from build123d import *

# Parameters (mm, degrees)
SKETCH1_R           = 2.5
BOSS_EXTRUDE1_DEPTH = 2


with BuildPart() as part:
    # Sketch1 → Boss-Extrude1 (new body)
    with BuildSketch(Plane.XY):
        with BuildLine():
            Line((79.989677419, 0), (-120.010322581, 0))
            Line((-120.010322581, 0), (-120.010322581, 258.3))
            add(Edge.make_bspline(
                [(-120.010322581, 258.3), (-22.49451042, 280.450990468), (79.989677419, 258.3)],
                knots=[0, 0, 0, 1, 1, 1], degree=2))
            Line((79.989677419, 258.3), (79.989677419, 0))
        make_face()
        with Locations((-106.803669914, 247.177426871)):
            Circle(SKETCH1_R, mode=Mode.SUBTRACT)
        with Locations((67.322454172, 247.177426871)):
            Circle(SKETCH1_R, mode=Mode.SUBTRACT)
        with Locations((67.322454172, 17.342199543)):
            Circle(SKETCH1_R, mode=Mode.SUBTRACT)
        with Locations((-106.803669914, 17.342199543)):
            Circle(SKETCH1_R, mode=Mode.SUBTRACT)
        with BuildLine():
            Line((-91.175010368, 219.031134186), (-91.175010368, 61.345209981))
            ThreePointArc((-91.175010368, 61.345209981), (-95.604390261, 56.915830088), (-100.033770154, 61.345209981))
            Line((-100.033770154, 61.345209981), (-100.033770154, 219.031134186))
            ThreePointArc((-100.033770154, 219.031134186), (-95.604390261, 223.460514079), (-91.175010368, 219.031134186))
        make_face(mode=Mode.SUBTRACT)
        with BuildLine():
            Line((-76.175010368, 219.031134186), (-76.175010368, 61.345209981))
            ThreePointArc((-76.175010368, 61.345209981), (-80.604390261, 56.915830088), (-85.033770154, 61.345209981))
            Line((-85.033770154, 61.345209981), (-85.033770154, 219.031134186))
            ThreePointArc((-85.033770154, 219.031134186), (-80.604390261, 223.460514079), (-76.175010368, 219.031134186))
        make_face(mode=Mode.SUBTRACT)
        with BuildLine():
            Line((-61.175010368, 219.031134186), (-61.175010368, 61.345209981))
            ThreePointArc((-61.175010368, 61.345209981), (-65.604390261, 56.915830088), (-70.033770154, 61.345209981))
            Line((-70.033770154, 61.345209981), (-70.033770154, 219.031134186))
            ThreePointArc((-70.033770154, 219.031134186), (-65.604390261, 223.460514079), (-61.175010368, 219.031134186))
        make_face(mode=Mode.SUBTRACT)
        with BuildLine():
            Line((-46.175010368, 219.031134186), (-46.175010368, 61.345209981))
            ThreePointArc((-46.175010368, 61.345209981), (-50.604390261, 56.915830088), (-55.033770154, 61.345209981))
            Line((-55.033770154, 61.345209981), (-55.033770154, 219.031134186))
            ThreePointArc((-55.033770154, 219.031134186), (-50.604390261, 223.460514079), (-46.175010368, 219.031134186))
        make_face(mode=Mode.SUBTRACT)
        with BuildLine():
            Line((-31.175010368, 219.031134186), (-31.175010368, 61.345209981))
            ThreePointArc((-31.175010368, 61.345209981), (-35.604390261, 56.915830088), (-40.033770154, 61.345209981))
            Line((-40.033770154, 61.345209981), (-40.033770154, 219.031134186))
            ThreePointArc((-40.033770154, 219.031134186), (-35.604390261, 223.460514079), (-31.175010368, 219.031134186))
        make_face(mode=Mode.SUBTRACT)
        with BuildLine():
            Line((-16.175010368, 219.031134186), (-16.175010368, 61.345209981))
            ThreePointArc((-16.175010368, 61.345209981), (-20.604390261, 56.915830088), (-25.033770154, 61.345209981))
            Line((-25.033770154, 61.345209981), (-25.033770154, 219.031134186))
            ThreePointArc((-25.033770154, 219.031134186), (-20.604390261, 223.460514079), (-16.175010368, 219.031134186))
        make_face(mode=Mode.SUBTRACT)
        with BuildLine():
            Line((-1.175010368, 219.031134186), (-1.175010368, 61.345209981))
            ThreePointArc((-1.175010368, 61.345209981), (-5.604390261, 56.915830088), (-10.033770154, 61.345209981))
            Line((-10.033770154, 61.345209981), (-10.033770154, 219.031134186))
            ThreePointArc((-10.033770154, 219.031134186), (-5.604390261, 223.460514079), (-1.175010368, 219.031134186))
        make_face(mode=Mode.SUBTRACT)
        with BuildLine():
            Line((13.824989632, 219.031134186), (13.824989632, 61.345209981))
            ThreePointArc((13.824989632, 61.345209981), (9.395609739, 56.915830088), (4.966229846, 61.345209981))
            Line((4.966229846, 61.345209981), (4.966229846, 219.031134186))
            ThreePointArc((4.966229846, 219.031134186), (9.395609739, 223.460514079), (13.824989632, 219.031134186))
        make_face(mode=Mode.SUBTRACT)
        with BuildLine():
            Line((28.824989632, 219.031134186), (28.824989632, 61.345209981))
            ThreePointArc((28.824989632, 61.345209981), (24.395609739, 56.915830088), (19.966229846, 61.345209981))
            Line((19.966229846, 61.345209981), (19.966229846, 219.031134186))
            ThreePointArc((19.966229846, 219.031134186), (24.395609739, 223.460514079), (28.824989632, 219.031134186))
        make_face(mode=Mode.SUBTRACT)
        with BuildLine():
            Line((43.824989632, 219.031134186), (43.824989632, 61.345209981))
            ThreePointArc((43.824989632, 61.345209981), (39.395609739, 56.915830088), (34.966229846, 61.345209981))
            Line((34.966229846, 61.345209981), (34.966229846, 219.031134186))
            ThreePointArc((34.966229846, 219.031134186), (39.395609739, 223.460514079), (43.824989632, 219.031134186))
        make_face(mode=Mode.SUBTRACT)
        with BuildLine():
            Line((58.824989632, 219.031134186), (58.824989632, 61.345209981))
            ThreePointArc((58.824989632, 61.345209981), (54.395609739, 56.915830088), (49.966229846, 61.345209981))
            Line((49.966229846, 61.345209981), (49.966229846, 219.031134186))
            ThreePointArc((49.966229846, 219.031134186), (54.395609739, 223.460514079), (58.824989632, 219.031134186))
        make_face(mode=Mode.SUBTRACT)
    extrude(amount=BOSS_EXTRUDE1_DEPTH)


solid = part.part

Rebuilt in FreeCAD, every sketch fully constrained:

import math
import FreeCAD as App
import Part
import Sketcher
Q = App.Units.Quantity

doc = App.newDocument("Part")
body = doc.addObject("PartDesign::Body", "Body")

sketch1 = body.newObject("Sketcher::SketchObject", "Sketch")
sketch1.AttachmentSupport = (doc.getObject("XY_Plane"), [""])
sketch1.MapMode = "FlatFace"
sketch1.addGeometry([
    Part.LineSegment(App.Vector(-120.010323, 0, 0), App.Vector(79.989677, 0, 0)),
    Part.LineSegment(App.Vector(79.989677, 0, 0), App.Vector(79.989677, 258.3, 0)),
    Part.BSplineCurve([App.Vector(-120.010323, 258.3, 0), App.Vector(-22.49451, 280.45099, 0), App.Vector(79.989677, 258.3, 0)], [3, 3], [0, 1], False, 2, [1, 1, 1], False),
    Part.LineSegment(App.Vector(-120.010323, 258.3, 0), App.Vector(-120.010323, 0, 0)),
    Part.Circle(App.Vector(67.322454, 17.3422, 0), App.Vector(0, 0, 1), 2.5),
    Part.Circle(App.Vector(-106.80367, 17.3422, 0), App.Vector(0, 0, 1), 2.5),
    Part.LineSegment(App.Vector(58.82499, 219.031134, 0), App.Vector(58.82499, 61.34521, 0)),
    Part.ArcOfCircle(Part.Circle(App.Vector(54.39561, 61.34521, 0), App.Vector(0, 0, 1), 4.42938), math.radians(180), math.radians(360)),
    Part.LineSegment(App.Vector(49.96623, 61.34521, 0), App.Vector(49.96623, 219.031134, 0)),
    Part.ArcOfCircle(Part.Circle(App.Vector(54.39561, 219.031134, 0), App.Vector(0, 0, 1), 4.42938), math.radians(0), math.radians(180)),
    Part.LineSegment(App.Vector(43.82499, 219.031134, 0), App.Vector(43.82499, 61.34521, 0)),
    Part.ArcOfCircle(Part.Circle(App.Vector(39.39561, 61.34521, 0), App.Vector(0, 0, 1), 4.42938), math.radians(180), math.radians(360)),
    Part.LineSegment(App.Vector(34.96623, 61.34521, 0), App.Vector(34.96623, 219.031134, 0)),
    Part.ArcOfCircle(Part.Circle(App.Vector(39.39561, 219.031134, 0), App.Vector(0, 0, 1), 4.42938), math.radians(0), math.radians(180)),
    Part.LineSegment(App.Vector(28.82499, 219.031134, 0), App.Vector(28.82499, 61.34521, 0)),
    Part.ArcOfCircle(Part.Circle(App.Vector(24.39561, 61.34521, 0), App.Vector(0, 0, 1), 4.42938), math.radians(180), math.radians(360)),
    Part.LineSegment(App.Vector(19.96623, 61.34521, 0), App.Vector(19.96623, 219.031134, 0)),
    Part.ArcOfCircle(Part.Circle(App.Vector(24.39561, 219.031134, 0), App.Vector(0, 0, 1), 4.42938), math.radians(0), math.radians(180)),
    Part.LineSegment(App.Vector(13.82499, 219.031134, 0), App.Vector(13.82499, 61.34521, 0)),
    Part.ArcOfCircle(Part.Circle(App.Vector(9.39561, 61.34521, 0), App.Vector(0, 0, 1), 4.42938), math.radians(180), math.radians(360)),
    Part.LineSegment(App.Vector(4.96623, 61.34521, 0), App.Vector(4.96623, 219.031134, 0)),
    Part.ArcOfCircle(Part.Circle(App.Vector(9.39561, 219.031134, 0), App.Vector(0, 0, 1), 4.42938), math.radians(0), math.radians(180)),
    Part.LineSegment(App.Vector(-1.17501, 219.031134, 0), App.Vector(-1.17501, 61.34521, 0)),
    Part.ArcOfCircle(Part.Circle(App.Vector(-5.60439, 61.34521, 0), App.Vector(0, 0, 1), 4.42938), math.radians(180), math.radians(360)),
    Part.LineSegment(App.Vector(-10.03377, 61.34521, 0), App.Vector(-10.03377, 219.031134, 0)),
    Part.ArcOfCircle(Part.Circle(App.Vector(-5.60439, 219.031134, 0), App.Vector(0, 0, 1), 4.42938), math.radians(0), math.radians(180)),
    Part.Circle(App.Vector(67.322454, 247.177427, 0), App.Vector(0, 0, 1), 2.5),
    Part.LineSegment(App.Vector(-16.17501, 219.031134, 0), App.Vector(-16.17501, 61.34521, 0)),
    Part.ArcOfCircle(Part.Circle(App.Vector(-20.60439, 61.34521, 0), App.Vector(0, 0, 1), 4.42938), math.radians(180), math.radians(360)),
    Part.LineSegment(App.Vector(-25.03377, 61.34521, 0), App.Vector(-25.03377, 219.031134, 0)),
    Part.ArcOfCircle(Part.Circle(App.Vector(-20.60439, 219.031134, 0), App.Vector(0, 0, 1), 4.42938), math.radians(0), math.radians(180)),
    Part.LineSegment(App.Vector(-31.17501, 219.031134, 0), App.Vector(-31.17501, 61.34521, 0)),
    Part.ArcOfCircle(Part.Circle(App.Vector(-35.60439, 61.34521, 0), App.Vector(0, 0, 1), 4.42938), math.radians(180), math.radians(360)),
    Part.LineSegment(App.Vector(-40.03377, 61.34521, 0), App.Vector(-40.03377, 219.031134, 0)),
    Part.ArcOfCircle(Part.Circle(App.Vector(-35.60439, 219.031134, 0), App.Vector(0, 0, 1), 4.42938), math.radians(0), math.radians(180)),
    Part.LineSegment(App.Vector(-46.17501, 219.031134, 0), App.Vector(-46.17501, 61.34521, 0)),
    Part.ArcOfCircle(Part.Circle(App.Vector(-50.60439, 61.34521, 0), App.Vector(0, 0, 1), 4.42938), math.radians(180), math.radians(360)),
    Part.LineSegment(App.Vector(-55.03377, 61.34521, 0), App.Vector(-55.03377, 219.031134, 0)),
    Part.ArcOfCircle(Part.Circle(App.Vector(-50.60439, 219.031134, 0), App.Vector(0, 0, 1), 4.42938), math.radians(0), math.radians(180)),
    Part.LineSegment(App.Vector(-61.17501, 219.031134, 0), App.Vector(-61.17501, 61.34521, 0)),
    Part.ArcOfCircle(Part.Circle(App.Vector(-65.60439, 61.34521, 0), App.Vector(0, 0, 1), 4.42938), math.radians(180), math.radians(360)),
    Part.LineSegment(App.Vector(-70.03377, 61.34521, 0), App.Vector(-70.03377, 219.031134, 0)),
    Part.ArcOfCircle(Part.Circle(App.Vector(-65.60439, 219.031134, 0), App.Vector(0, 0, 1), 4.42938), math.radians(0), math.radians(180)),
    Part.LineSegment(App.Vector(-76.17501, 219.031134, 0), App.Vector(-76.17501, 61.34521, 0)),
    Part.ArcOfCircle(Part.Circle(App.Vector(-80.60439, 61.34521, 0), App.Vector(0, 0, 1), 4.42938), math.radians(180), math.radians(360)),
    Part.LineSegment(App.Vector(-85.03377, 61.34521, 0), App.Vector(-85.03377, 219.031134, 0)),
    Part.ArcOfCircle(Part.Circle(App.Vector(-80.60439, 219.031134, 0), App.Vector(0, 0, 1), 4.42938), math.radians(0), math.radians(180)),
    Part.LineSegment(App.Vector(-91.17501, 219.031134, 0), App.Vector(-91.17501, 61.34521, 0)),
    Part.ArcOfCircle(Part.Circle(App.Vector(-95.60439, 61.34521, 0), App.Vector(0, 0, 1), 4.42938), math.radians(180), math.radians(360)),
    Part.LineSegment(App.Vector(-100.03377, 61.34521, 0), App.Vector(-100.03377, 219.031134, 0)),
    Part.ArcOfCircle(Part.Circle(App.Vector(-95.60439, 219.031134, 0), App.Vector(0, 0, 1), 4.42938), math.radians(0), math.radians(180)),
    Part.Circle(App.Vector(-106.80367, 247.177427, 0), App.Vector(0, 0, 1), 2.5),
], False)
sketch1.addConstraint([
    Sketcher.Constraint("Block", 2),
    Sketcher.Constraint("Coincident", 0, 2, 1, 1),
    Sketcher.Constraint("Coincident", 1, 2, 2, 2),
    Sketcher.Constraint("Coincident", 2, 1, 3, 1),
    Sketcher.Constraint("Coincident", 3, 2, 0, 1),
    Sketcher.Constraint("Tangent", 6, 2, 7, 2),
    Sketcher.Constraint("Tangent", 7, 1, 8, 1),
    Sketcher.Constraint("Tangent", 8, 2, 9, 2),
    Sketcher.Constraint("Tangent", 9, 1, 6, 1),
    Sketcher.Constraint("Tangent", 10, 2, 11, 2),
    Sketcher.Constraint("Tangent", 11, 1, 12, 1),
    Sketcher.Constraint("Tangent", 12, 2, 13, 2),
    Sketcher.Constraint("Tangent", 13, 1, 10, 1),
    Sketcher.Constraint("Tangent", 14, 2, 15, 2),
    Sketcher.Constraint("Tangent", 15, 1, 16, 1),
    Sketcher.Constraint("Tangent", 16, 2, 17, 2),
    Sketcher.Constraint("Tangent", 17, 1, 14, 1),
    Sketcher.Constraint("Tangent", 18, 2, 19, 2),
    Sketcher.Constraint("Tangent", 19, 1, 20, 1),
    Sketcher.Constraint("Tangent", 20, 2, 21, 2),
    Sketcher.Constraint("Tangent", 21, 1, 18, 1),
    Sketcher.Constraint("Tangent", 22, 2, 23, 2),
    Sketcher.Constraint("Tangent", 23, 1, 24, 1),
    Sketcher.Constraint("Tangent", 24, 2, 25, 2),
    Sketcher.Constraint("Tangent", 25, 1, 22, 1),
    Sketcher.Constraint("Tangent", 27, 2, 28, 2),
    Sketcher.Constraint("Tangent", 28, 1, 29, 1),
    Sketcher.Constraint("Tangent", 29, 2, 30, 2),
    Sketcher.Constraint("Tangent", 30, 1, 27, 1),
    Sketcher.Constraint("Tangent", 31, 2, 32, 2),
    Sketcher.Constraint("Tangent", 32, 1, 33, 1),
    Sketcher.Constraint("Tangent", 33, 2, 34, 2),
    Sketcher.Constraint("Tangent", 34, 1, 31, 1),
    Sketcher.Constraint("Tangent", 35, 2, 36, 2),
    Sketcher.Constraint("Tangent", 36, 1, 37, 1),
    Sketcher.Constraint("Tangent", 37, 2, 38, 2),
    Sketcher.Constraint("Tangent", 38, 1, 35, 1),
    Sketcher.Constraint("Tangent", 39, 2, 40, 2),
    Sketcher.Constraint("Tangent", 40, 1, 41, 1),
    Sketcher.Constraint("Tangent", 41, 2, 42, 2),
    Sketcher.Constraint("Tangent", 42, 1, 39, 1),
    Sketcher.Constraint("Tangent", 43, 2, 44, 2),
    Sketcher.Constraint("Tangent", 44, 1, 45, 1),
    Sketcher.Constraint("Tangent", 45, 2, 46, 2),
    Sketcher.Constraint("Tangent", 46, 1, 43, 1),
    Sketcher.Constraint("Tangent", 47, 2, 48, 2),
    Sketcher.Constraint("Tangent", 48, 1, 49, 1),
    Sketcher.Constraint("Tangent", 49, 2, 50, 2),
    Sketcher.Constraint("Tangent", 50, 1, 47, 1),
    Sketcher.Constraint("Horizontal", 0),
    Sketcher.Constraint("Vertical", 1),
    Sketcher.Constraint("Vertical", 3),
    Sketcher.Constraint("Vertical", 6),
    Sketcher.Constraint("Vertical", 8),
    Sketcher.Constraint("Vertical", 10),
    Sketcher.Constraint("Vertical", 12),
    Sketcher.Constraint("Vertical", 14),
    Sketcher.Constraint("Vertical", 16),
    Sketcher.Constraint("Vertical", 18),
    Sketcher.Constraint("Vertical", 20),
    Sketcher.Constraint("Vertical", 22),
    Sketcher.Constraint("Vertical", 24),
    Sketcher.Constraint("Vertical", 27),
    Sketcher.Constraint("Vertical", 29),
    Sketcher.Constraint("Vertical", 31),
    Sketcher.Constraint("Vertical", 33),
    Sketcher.Constraint("Vertical", 35),
    Sketcher.Constraint("Vertical", 37),
    Sketcher.Constraint("Vertical", 39),
    Sketcher.Constraint("Vertical", 41),
    Sketcher.Constraint("Vertical", 43),
    Sketcher.Constraint("Vertical", 45),
    Sketcher.Constraint("Vertical", 47),
    Sketcher.Constraint("Vertical", 49),
    Sketcher.Constraint("Equal", 4, 5),
    Sketcher.Constraint("Equal", 9, 11),
    Sketcher.Constraint("Equal", 13, 15),
    Sketcher.Constraint("Equal", 17, 19),
    Sketcher.Constraint("Equal", 21, 23),
    Sketcher.Constraint("Equal", 5, 26),
    Sketcher.Constraint("Equal", 25, 28),
    Sketcher.Constraint("Equal", 30, 32),
    Sketcher.Constraint("Equal", 34, 36),
    Sketcher.Constraint("Equal", 38, 40),
    Sketcher.Constraint("Equal", 42, 44),
    Sketcher.Constraint("Equal", 46, 48),
    Sketcher.Constraint("Equal", 26, 51),
    Sketcher.Constraint("PointOnObject", 0, 2, -1),
    Sketcher.Constraint("Horizontal", 4, 3, 5, 3),
    Sketcher.Constraint("Horizontal", 7, 3, 11, 3),
    Sketcher.Constraint("Horizontal", 9, 3, 13, 3),
    Sketcher.Constraint("Horizontal", 11, 3, 15, 3),
    Sketcher.Constraint("Horizontal", 13, 3, 17, 3),
    Sketcher.Constraint("Horizontal", 15, 3, 19, 3),
    Sketcher.Constraint("Horizontal", 17, 3, 21, 3),
    Sketcher.Constraint("Horizontal", 19, 3, 23, 3),
    Sketcher.Constraint("Horizontal", 21, 3, 25, 3),
    Sketcher.Constraint("Horizontal", 23, 3, 28, 3),
    Sketcher.Constraint("Horizontal", 25, 3, 30, 3),
    Sketcher.Constraint("Horizontal", 28, 3, 32, 3),
    Sketcher.Constraint("Horizontal", 30, 3, 34, 3),
    Sketcher.Constraint("Horizontal", 32, 3, 36, 3),
    Sketcher.Constraint("Horizontal", 34, 3, 38, 3),
    Sketcher.Constraint("Horizontal", 36, 3, 40, 3),
    Sketcher.Constraint("Horizontal", 38, 3, 42, 3),
    Sketcher.Constraint("Horizontal", 40, 3, 44, 3),
    Sketcher.Constraint("Horizontal", 42, 3, 46, 3),
    Sketcher.Constraint("Horizontal", 44, 3, 48, 3),
    Sketcher.Constraint("Horizontal", 46, 3, 50, 3),
    Sketcher.Constraint("Horizontal", 26, 3, 51, 3),
    Sketcher.Constraint("Vertical", 4, 3, 26, 3),
    Sketcher.Constraint("Vertical", 5, 3, 51, 3),
    Sketcher.Constraint("Diameter", 4, Q("5 mm")),
    Sketcher.Constraint("Radius", 7, Q("4.42938 mm")),
    Sketcher.Constraint("DistanceY", -1, 1, 4, 3, Q("17.3422 mm")),
    Sketcher.Constraint("DistanceY", 6, 2, 6, 1, Q("157.685924 mm")),
    Sketcher.Constraint("DistanceX", 5, 3, -1, 1, Q("106.80367 mm")),
    Sketcher.Constraint("DistanceX", -1, 1, 7, 3, Q("54.39561 mm")),
    Sketcher.Constraint("DistanceY", -1, 1, 7, 3, Q("61.34521 mm")),
    Sketcher.Constraint("DistanceX", -1, 1, 11, 3, Q("39.39561 mm")),
    Sketcher.Constraint("DistanceX", -1, 1, 15, 3, Q("24.39561 mm")),
    Sketcher.Constraint("DistanceX", -1, 1, 19, 3, Q("9.39561 mm")),
    Sketcher.Constraint("DistanceX", 23, 3, -1, 1, Q("5.60439 mm")),
    Sketcher.Constraint("DistanceX", 28, 3, -1, 1, Q("20.60439 mm")),
    Sketcher.Constraint("DistanceX", 32, 3, -1, 1, Q("35.60439 mm")),
    Sketcher.Constraint("DistanceX", 36, 3, -1, 1, Q("50.60439 mm")),
    Sketcher.Constraint("DistanceX", 40, 3, -1, 1, Q("65.60439 mm")),
    Sketcher.Constraint("DistanceX", 44, 3, -1, 1, Q("80.60439 mm")),
    Sketcher.Constraint("DistanceX", 48, 3, -1, 1, Q("95.60439 mm")),
    Sketcher.Constraint("DistanceX", -1, 1, 4, 3, Q("67.322454 mm")),
    Sketcher.Constraint("DistanceY", -1, 1, 26, 3, Q("247.177427 mm")),
])
pad1 = body.newObject("PartDesign::Pad", "Pad")
pad1.Profile = sketch1
pad1.Length = 2

doc.recompute()
